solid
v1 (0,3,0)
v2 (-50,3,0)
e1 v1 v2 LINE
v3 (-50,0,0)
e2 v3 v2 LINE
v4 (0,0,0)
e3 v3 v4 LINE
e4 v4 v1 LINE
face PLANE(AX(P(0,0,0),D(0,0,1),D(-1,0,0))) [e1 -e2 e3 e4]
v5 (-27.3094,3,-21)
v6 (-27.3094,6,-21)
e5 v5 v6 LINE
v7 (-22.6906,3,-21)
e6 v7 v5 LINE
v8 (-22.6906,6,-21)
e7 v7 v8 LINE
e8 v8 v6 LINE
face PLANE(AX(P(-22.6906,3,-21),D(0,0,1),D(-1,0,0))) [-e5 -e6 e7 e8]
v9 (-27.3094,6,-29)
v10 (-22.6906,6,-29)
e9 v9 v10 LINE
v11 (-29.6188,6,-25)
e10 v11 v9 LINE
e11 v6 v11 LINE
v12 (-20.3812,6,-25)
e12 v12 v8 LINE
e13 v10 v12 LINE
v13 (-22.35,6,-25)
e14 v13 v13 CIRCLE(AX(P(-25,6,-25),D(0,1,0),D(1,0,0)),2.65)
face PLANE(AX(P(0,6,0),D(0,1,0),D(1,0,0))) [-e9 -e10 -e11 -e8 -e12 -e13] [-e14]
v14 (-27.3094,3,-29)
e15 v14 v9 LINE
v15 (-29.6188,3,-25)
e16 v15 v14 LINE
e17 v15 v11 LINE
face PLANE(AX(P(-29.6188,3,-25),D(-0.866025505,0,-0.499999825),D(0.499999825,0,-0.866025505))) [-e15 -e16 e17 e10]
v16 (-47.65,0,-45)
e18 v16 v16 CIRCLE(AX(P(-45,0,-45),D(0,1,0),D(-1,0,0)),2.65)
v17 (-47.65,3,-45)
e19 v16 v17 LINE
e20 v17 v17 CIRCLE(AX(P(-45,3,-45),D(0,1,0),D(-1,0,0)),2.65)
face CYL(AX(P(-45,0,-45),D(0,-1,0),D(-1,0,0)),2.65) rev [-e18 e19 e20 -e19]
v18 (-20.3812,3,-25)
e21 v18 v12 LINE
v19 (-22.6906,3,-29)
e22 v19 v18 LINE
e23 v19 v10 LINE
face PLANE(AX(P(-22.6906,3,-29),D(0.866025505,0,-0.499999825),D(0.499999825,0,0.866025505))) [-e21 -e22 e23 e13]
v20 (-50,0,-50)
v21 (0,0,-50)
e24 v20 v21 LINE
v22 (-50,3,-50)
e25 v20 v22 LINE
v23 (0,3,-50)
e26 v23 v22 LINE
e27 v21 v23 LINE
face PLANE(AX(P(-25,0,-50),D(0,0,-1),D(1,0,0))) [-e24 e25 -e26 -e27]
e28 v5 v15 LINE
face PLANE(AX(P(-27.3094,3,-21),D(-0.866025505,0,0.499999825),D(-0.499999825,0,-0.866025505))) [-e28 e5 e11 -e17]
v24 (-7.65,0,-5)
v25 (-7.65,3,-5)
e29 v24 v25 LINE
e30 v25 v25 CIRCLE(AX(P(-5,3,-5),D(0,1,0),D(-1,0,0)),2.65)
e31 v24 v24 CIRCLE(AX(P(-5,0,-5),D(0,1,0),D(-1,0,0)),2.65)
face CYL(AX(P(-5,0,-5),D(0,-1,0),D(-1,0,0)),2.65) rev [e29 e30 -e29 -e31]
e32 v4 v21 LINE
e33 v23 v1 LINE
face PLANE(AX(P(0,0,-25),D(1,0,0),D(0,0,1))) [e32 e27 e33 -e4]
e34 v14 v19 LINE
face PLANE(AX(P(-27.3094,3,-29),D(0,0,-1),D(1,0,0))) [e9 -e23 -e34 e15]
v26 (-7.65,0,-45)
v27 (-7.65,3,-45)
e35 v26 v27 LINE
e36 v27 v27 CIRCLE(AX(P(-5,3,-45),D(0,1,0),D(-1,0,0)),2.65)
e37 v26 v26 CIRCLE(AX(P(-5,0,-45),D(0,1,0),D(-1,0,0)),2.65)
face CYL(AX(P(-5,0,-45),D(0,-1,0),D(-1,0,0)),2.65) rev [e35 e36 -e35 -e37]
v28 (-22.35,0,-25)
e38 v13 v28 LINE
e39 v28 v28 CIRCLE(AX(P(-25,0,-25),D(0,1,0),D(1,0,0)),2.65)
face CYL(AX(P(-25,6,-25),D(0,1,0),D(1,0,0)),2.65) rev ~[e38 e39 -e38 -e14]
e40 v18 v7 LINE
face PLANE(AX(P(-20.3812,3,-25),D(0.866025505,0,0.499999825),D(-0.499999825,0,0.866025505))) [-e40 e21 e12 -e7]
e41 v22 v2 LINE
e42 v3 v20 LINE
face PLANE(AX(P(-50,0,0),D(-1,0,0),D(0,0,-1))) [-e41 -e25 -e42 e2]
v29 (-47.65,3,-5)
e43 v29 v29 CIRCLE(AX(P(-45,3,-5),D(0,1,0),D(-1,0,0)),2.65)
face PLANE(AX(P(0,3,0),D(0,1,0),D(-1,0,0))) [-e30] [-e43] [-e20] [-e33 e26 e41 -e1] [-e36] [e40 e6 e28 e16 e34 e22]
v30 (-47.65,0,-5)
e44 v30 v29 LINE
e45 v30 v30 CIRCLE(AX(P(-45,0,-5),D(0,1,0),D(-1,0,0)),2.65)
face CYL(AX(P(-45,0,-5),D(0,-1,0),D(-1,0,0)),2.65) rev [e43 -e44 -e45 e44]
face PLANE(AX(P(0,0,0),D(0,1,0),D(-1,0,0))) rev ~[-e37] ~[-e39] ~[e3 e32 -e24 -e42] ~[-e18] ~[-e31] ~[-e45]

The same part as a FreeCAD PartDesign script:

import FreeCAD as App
import Part
import Sketcher
Q = App.Units.Quantity

doc = App.newDocument("Part")
params = doc.addObject("Spreadsheet::Sheet", "Params")
for row, (alias, value) in enumerate([
    ("sketch1_diameter", "5.3 mm"),
    ("sketch1_width", "50 mm"),
    ("pad1_length", "3 mm"),
    ("pad2_length", "3 mm"),
    ("sketch3_diameter", "5.3 mm"),
    ("pocket1_length", "10 mm"),
], start=1):
    params.set(f"A{row}", alias)
    params.set(f"B{row}", "=" + value)
    params.setAlias(f"B{row}", alias)

body = doc.addObject("PartDesign::Body", "Body")

sketch1 = body.newObject("Sketcher::SketchObject", "Sketch")
sketch1.AttachmentSupport = (doc.getObject("XZ_Plane"), [""])
sketch1.MapMode = "FlatFace"
sketch1.addGeometry([
    Part.LineSegment(App.Vector(0, 0, 0), App.Vector(0, -50, 0)),
    Part.LineSegment(App.Vector(0, -50, 0), App.Vector(-50, -50, 0)),
    Part.LineSegment(App.Vector(-50, -50, 0), App.Vector(-50, 0, 0)),
    Part.LineSegment(App.Vector(-50, 0, 0), App.Vector(0, 0, 0)),
    Part.Circle(App.Vector(-5, -5, 0), App.Vector(0, 0, 1), 2.65),
    Part.Circle(App.Vector(-45, -5, 0), App.Vector(0, 0, 1), 2.65),
    Part.Circle(App.Vector(-5, -45, 0), App.Vector(0, 0, 1), 2.65),
    Part.Circle(App.Vector(-45, -45, 0), App.Vector(0, 0, 1), 2.65),
], False)
sketch1.addConstraint([
    Sketcher.Constraint("Coincident", 0, 2, 1, 1),
    Sketcher.Constraint("Coincident", 1, 2, 2, 1),
    Sketcher.Constraint("Coincident", 2, 2, 3, 1),
    Sketcher.Constraint("Coincident", 3, 2, 0, 1),
    Sketcher.Constraint("Vertical", 0),
    Sketcher.Constraint("Horizontal", 1),
    Sketcher.Constraint("Vertical", 2),
    Sketcher.Constraint("Horizontal", 3),
    Sketcher.Constraint("Coincident", 3, 2, -1, 1),
    Sketcher.Constraint("Equal", 4, 5),
    Sketcher.Constraint("Equal", 5, 6),
    Sketcher.Constraint("Equal", 6, 7),
    Sketcher.Constraint("Horizontal", 4, 3, 5, 3),
    Sketcher.Constraint("Horizontal", 6, 3, 7, 3),
    Sketcher.Constraint("Vertical", 4, 3, 6, 3),
    Sketcher.Constraint("Vertical", 5, 3, 7, 3),
    Sketcher.Constraint("Equal", 3, 0),
    Sketcher.Constraint("Diameter", 4, 5.3),
    Sketcher.Constraint("DistanceX", 1, 2, 1, 1, 50.0),
    Sketcher.Constraint("DistanceX", 4, 3, -1, 1, 5.0),
    Sketcher.Constraint("DistanceY", 4, 3, -1, 1, 5.0),
    Sketcher.Constraint("DistanceY", 0, 2, 6, 3, 5.0),
    Sketcher.Constraint("DistanceX", 1, 2, 7, 3, 5.0),
])
sketch1.setExpression("Constraints[17]", "Params.sketch1_diameter")
sketch1.setExpression("Constraints[18]", "Params.sketch1_width")
pad1 = body.newObject("PartDesign::Pad", "Pad")
pad1.Profile = sketch1
pad1.setExpression("Length", "Params.pad1_length")
pad1.Reversed = True

sketch2 = body.newObject("Sketcher::SketchObject", "Sketch001")
sketch2.AttachmentSupport = (doc.getObject("XZ_Plane"), [""])
sketch2.MapMode = "FlatFace"
sketch2.AttachmentOffset = App.Placement(App.Vector(0, 0, -3), App.Rotation())
sketch2.addGeometry([
    Part.LineSegment(App.Vector(-22.6906, -21, 0), App.Vector(-20.3812, -25, 0)),
    Part.LineSegment(App.Vector(-20.3812, -25, 0), App.Vector(-22.6906, -29, 0)),
    Part.LineSegment(App.Vector(-22.6906, -29, 0), App.Vector(-27.3094, -29, 0)),
    Part.LineSegment(App.Vector(-27.3094, -29, 0), App.Vector(-29.6188, -25, 0)),
    Part.LineSegment(App.Vector(-29.6188, -25, 0), App.Vector(-27.3094, -21, 0)),
    Part.LineSegment(App.Vector(-27.3094, -21, 0), App.Vector(-22.6906, -21, 0)),
], False)
sketch2.addConstraint([
    Sketcher.Constraint("Coincident", 0, 2, 1, 1),
    Sketcher.Constraint("Coincident", 1, 2, 2, 1),
    Sketcher.Constraint("Coincident", 2, 2, 3, 1),
    Sketcher.Constraint("Coincident", 3, 2, 4, 1),
    Sketcher.Constraint("Coincident", 4, 2, 5, 1),
    Sketcher.Constraint("Coincident", 5, 2, 0, 1),
    Sketcher.Constraint("Horizontal", 2),
    Sketcher.Constraint("Horizontal", 5),
    Sketcher.Constraint("Parallel", 0, 3),
    Sketcher.Constraint("Parallel", 1, 4),
    Sketcher.Constraint("Horizontal", 0, 2, 3, 2),
    Sketcher.Constraint("Vertical", 2, 2, 4, 2),
    Sketcher.Constraint("Vertical", 1, 2, 5, 2),
    Sketcher.Constraint("DistanceY", 0, 2, -1, 1, 25.0),
    Sketcher.Constraint("DistanceY", 2, 2, 4, 2, 8.0),
    Sketcher.Constraint("Angle", 0, Q("-60 deg")),
    Sketcher.Constraint("DistanceX", 2, 2, 2, 1, 4.6188),
    Sketcher.Constraint("DistanceX", 0, 2, -1, 1, 20.3812),
])
pad2 = body.newObject("PartDesign::Pad", "Pad001")
pad2.Profile = sketch2
pad2.setExpression("Length", "Params.pad2_length")
pad2.Reversed = True

sketch3 = body.newObject("Sketcher::SketchObject", "Sketch002")
sketch3.AttachmentSupport = (doc.getObject("XZ_Plane"), [""])
sketch3.MapMode = "FlatFace"
sketch3.AttachmentOffset = App.Placement(App.Vector(0, 0, -6), App.Rotation())
sketch3.addGeometry(Part.Circle(App.Vector(-25, -25, 0), App.Vector(0, 0, 1), 2.65), False)
sketch3.addConstraint([
    Sketcher.Constraint("Diameter", 0, 5.3),
    Sketcher.Constraint("DistanceX", 0, 3, -1, 1, 25.0),
    Sketcher.Constraint("DistanceY", 0, 3, -1, 1, 25.0),
])
sketch3.setExpression("Constraints[0]", "Params.sketch3_diameter")
pocket1 = body.newObject("PartDesign::Pocket", "Pocket")
pocket1.Profile = sketch3
pocket1.setExpression("Length", "Params.pocket1_length")
pocket1.Reversed = True

doc.recompute()
